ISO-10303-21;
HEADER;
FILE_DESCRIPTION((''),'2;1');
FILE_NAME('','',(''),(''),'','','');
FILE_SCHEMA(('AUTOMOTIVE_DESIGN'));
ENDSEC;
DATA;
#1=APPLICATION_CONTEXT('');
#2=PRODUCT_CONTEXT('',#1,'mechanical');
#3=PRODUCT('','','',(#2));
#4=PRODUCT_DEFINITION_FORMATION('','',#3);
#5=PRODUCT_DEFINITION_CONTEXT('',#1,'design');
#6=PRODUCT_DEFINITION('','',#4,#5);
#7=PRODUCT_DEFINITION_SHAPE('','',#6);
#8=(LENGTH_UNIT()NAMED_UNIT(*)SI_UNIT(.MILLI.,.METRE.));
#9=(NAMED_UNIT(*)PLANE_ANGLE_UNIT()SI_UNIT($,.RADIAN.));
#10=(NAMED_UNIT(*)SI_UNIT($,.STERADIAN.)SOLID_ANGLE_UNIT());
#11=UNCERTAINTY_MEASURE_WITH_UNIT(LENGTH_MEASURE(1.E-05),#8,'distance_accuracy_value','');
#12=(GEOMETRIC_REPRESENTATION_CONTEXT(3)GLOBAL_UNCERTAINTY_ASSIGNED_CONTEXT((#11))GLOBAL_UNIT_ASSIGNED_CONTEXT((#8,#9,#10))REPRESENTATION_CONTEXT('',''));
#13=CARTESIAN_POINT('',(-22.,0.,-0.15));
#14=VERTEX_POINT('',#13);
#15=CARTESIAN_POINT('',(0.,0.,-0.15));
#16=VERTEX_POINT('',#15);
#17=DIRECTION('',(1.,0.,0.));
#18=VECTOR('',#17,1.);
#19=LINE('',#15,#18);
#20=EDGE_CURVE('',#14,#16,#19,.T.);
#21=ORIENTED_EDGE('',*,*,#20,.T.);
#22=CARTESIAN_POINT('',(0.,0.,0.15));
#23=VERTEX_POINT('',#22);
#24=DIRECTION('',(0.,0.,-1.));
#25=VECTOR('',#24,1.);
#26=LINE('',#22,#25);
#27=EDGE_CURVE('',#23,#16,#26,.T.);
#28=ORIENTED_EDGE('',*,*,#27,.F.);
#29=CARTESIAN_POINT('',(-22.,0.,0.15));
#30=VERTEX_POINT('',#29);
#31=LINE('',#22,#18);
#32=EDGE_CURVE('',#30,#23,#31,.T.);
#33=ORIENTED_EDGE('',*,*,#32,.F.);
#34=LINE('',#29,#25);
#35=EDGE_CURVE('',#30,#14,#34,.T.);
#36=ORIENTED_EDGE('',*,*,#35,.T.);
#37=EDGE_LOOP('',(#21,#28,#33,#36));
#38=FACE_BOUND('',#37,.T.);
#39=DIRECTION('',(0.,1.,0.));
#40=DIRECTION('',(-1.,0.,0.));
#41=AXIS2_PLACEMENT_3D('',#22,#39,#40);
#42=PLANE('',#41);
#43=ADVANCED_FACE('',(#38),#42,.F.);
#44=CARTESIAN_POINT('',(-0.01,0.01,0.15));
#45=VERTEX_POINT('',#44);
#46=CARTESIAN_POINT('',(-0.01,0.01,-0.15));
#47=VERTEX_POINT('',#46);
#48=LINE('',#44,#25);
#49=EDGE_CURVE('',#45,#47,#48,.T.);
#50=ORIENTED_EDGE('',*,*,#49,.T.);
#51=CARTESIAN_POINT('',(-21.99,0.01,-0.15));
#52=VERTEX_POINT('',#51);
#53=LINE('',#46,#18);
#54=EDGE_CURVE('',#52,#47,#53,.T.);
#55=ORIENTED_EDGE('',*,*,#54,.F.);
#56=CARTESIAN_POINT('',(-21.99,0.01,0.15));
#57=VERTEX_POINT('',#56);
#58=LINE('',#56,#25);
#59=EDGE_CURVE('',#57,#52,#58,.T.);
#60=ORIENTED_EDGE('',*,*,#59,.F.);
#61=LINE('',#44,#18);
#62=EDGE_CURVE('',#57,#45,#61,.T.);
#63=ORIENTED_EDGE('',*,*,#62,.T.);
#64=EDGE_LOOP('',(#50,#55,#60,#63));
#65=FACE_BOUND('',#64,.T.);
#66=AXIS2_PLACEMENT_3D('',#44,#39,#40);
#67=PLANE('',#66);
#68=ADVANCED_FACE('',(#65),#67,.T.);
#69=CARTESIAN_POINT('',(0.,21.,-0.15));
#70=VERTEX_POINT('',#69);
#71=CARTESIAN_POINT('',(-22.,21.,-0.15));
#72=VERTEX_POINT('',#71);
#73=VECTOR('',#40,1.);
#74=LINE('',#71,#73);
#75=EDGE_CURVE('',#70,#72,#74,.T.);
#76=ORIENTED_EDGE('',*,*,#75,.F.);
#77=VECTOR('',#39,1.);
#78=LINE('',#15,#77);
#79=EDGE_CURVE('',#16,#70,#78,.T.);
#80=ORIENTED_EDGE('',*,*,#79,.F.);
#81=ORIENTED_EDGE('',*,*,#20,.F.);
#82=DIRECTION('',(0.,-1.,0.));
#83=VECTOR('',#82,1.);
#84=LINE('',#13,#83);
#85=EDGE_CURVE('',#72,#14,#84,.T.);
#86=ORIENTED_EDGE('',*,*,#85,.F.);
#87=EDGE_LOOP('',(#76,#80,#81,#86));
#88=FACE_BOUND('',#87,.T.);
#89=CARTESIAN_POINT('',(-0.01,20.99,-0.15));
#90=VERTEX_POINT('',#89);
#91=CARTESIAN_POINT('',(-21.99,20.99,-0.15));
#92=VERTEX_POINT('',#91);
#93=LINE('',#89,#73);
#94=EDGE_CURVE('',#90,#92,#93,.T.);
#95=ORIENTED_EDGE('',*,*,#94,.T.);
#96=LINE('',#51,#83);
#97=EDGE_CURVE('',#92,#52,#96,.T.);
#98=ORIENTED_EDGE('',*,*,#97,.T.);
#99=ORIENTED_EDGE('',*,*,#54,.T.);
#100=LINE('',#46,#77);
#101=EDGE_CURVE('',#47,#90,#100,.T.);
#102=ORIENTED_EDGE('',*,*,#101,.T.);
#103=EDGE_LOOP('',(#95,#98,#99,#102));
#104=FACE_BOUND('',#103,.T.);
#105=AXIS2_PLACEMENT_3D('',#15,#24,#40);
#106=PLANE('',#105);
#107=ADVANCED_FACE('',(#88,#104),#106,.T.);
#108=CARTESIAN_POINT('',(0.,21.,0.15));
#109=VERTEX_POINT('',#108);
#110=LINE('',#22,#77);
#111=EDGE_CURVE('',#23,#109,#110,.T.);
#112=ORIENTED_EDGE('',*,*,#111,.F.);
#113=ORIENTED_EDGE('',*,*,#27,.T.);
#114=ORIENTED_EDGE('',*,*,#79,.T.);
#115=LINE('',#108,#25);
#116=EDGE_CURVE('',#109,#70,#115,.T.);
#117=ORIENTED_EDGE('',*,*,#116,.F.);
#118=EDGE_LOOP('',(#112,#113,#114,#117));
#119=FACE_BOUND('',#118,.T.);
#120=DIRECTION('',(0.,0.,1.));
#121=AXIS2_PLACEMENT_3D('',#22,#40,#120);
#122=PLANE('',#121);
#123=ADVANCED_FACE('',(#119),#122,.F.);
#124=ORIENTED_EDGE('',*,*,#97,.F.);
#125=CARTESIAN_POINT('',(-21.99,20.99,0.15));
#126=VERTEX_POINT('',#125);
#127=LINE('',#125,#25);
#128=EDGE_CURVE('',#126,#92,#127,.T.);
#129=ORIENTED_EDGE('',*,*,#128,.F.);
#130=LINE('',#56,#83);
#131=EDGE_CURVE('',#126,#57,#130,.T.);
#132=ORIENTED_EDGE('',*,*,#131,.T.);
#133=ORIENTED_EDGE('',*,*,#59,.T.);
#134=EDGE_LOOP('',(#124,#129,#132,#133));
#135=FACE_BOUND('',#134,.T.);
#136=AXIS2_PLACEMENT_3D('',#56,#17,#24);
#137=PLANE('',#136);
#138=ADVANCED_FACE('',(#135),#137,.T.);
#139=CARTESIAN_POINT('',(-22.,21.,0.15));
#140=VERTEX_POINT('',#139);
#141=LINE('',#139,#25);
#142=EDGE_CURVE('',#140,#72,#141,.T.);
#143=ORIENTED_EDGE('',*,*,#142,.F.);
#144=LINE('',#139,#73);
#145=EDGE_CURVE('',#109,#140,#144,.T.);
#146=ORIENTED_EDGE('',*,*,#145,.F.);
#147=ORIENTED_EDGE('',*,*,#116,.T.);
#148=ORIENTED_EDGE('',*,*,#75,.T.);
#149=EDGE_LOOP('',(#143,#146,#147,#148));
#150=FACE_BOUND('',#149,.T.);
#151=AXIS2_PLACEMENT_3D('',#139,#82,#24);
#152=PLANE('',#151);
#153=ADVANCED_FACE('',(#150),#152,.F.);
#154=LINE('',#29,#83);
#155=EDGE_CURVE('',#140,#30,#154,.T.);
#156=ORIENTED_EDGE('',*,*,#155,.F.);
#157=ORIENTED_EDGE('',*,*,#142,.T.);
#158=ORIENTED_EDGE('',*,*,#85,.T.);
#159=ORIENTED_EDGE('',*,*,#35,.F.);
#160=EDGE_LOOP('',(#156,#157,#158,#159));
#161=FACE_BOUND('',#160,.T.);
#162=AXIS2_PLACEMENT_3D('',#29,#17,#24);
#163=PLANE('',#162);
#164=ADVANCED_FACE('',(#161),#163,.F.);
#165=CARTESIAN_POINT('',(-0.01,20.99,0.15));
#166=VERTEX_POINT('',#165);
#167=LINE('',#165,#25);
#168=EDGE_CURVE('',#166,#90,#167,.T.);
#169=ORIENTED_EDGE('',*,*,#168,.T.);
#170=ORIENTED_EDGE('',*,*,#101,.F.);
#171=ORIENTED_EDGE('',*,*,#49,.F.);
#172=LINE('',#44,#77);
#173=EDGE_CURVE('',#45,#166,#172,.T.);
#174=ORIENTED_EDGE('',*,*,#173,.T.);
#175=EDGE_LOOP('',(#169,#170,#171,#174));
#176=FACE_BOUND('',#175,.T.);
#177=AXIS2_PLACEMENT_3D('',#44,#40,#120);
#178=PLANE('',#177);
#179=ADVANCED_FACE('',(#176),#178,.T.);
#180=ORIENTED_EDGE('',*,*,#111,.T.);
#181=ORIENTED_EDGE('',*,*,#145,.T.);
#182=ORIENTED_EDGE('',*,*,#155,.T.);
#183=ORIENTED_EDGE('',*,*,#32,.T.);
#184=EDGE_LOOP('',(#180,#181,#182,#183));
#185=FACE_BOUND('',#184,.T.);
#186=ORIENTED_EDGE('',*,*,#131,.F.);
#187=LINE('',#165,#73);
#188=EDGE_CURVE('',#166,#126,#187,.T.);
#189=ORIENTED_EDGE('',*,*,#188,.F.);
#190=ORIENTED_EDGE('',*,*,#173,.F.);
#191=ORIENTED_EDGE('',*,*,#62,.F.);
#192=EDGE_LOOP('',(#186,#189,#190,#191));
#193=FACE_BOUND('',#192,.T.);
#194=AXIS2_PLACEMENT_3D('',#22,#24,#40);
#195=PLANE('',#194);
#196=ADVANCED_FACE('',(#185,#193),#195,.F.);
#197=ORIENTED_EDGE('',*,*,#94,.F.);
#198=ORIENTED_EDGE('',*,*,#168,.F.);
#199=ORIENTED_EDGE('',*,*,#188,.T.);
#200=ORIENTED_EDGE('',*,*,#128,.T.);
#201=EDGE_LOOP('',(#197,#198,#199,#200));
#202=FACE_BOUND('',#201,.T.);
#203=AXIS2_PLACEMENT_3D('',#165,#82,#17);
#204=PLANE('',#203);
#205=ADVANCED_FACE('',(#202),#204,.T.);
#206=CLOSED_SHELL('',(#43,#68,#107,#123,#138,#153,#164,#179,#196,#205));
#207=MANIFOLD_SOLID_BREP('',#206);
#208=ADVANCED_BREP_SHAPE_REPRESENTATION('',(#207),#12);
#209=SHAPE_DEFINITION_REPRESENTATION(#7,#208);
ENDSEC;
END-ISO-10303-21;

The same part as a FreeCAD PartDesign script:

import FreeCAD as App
import Part
import Sketcher

V = App.Vector
Q = App.Units.Quantity

doc = App.newDocument("Part")
body = doc.addObject("PartDesign::Body", "Body")

sketch1 = body.newObject("Sketcher::SketchObject", "Sketch")
sketch1.AttachmentSupport = (doc.getObject("XY_Plane"), [""])
sketch1.MapMode = "FlatFace"
sketch1.addGeometry([
    Part.LineSegment(V(-22, 21, 0), V(-22, 0, 0)),
    Part.LineSegment(V(-22, 0, 0), V(0, 0, 0)),
    Part.LineSegment(V(0, 0, 0), V(0, 21, 0)),
    Part.LineSegment(V(0, 21, 0), V(-22, 21, 0)),
    Part.LineSegment(V(-0.01, 0.01, 0), V(-21.99, 0.01, 0)),
    Part.LineSegment(V(-21.99, 0.01, 0), V(-21.99, 20.99, 0)),
    Part.LineSegment(V(-21.99, 20.99, 0), V(-0.01, 20.99, 0)),
    Part.LineSegment(V(-0.01, 20.99, 0), V(-0.01, 0.01, 0)),
], False)
sketch1.addConstraint([
    Sketcher.Constraint("Coincident", 0, 2, 1, 1),
    Sketcher.Constraint("Coincident", 1, 2, 2, 1),
    Sketcher.Constraint("Coincident", 2, 2, 3, 1),
    Sketcher.Constraint("Coincident", 3, 2, 0, 1),
    Sketcher.Constraint("Coincident", 4, 2, 5, 1),
    Sketcher.Constraint("Coincident", 5, 2, 6, 1),
    Sketcher.Constraint("Coincident", 6, 2, 7, 1),
    Sketcher.Constraint("Coincident", 7, 2, 4, 1),
    Sketcher.Constraint("Vertical", 0),
    Sketcher.Constraint("Horizontal", 1),
    Sketcher.Constraint("Vertical", 2),
    Sketcher.Constraint("Horizontal", 3),
    Sketcher.Constraint("Horizontal", 4),
    Sketcher.Constraint("Vertical", 5),
    Sketcher.Constraint("Horizontal", 6),
    Sketcher.Constraint("Vertical", 7),
    Sketcher.Constraint("Coincident", 1, 2, -1, 1),
    Sketcher.Constraint("DistanceX", 1, 1, 1, 2, Q("22 mm")),
    Sketcher.Constraint("DistanceY", 0, 2, 0, 1, Q("21 mm")),
    Sketcher.Constraint("DistanceX", 4, 2, 4, 1, Q("21.98 mm")),
    Sketcher.Constraint("DistanceY", 5, 1, 5, 2, Q("20.98 mm")),
    Sketcher.Constraint("DistanceX", 4, 2, -1, 1, Q("21.99 mm")),
    Sketcher.Constraint("DistanceY", -1, 1, 4, 2, Q("0.01 mm")),
])
pad1 = body.newObject("PartDesign::Pad", "Pad")
pad1.Profile = sketch1
pad1.Length = 0.3
pad1.Midplane = True

doc.recompute()
